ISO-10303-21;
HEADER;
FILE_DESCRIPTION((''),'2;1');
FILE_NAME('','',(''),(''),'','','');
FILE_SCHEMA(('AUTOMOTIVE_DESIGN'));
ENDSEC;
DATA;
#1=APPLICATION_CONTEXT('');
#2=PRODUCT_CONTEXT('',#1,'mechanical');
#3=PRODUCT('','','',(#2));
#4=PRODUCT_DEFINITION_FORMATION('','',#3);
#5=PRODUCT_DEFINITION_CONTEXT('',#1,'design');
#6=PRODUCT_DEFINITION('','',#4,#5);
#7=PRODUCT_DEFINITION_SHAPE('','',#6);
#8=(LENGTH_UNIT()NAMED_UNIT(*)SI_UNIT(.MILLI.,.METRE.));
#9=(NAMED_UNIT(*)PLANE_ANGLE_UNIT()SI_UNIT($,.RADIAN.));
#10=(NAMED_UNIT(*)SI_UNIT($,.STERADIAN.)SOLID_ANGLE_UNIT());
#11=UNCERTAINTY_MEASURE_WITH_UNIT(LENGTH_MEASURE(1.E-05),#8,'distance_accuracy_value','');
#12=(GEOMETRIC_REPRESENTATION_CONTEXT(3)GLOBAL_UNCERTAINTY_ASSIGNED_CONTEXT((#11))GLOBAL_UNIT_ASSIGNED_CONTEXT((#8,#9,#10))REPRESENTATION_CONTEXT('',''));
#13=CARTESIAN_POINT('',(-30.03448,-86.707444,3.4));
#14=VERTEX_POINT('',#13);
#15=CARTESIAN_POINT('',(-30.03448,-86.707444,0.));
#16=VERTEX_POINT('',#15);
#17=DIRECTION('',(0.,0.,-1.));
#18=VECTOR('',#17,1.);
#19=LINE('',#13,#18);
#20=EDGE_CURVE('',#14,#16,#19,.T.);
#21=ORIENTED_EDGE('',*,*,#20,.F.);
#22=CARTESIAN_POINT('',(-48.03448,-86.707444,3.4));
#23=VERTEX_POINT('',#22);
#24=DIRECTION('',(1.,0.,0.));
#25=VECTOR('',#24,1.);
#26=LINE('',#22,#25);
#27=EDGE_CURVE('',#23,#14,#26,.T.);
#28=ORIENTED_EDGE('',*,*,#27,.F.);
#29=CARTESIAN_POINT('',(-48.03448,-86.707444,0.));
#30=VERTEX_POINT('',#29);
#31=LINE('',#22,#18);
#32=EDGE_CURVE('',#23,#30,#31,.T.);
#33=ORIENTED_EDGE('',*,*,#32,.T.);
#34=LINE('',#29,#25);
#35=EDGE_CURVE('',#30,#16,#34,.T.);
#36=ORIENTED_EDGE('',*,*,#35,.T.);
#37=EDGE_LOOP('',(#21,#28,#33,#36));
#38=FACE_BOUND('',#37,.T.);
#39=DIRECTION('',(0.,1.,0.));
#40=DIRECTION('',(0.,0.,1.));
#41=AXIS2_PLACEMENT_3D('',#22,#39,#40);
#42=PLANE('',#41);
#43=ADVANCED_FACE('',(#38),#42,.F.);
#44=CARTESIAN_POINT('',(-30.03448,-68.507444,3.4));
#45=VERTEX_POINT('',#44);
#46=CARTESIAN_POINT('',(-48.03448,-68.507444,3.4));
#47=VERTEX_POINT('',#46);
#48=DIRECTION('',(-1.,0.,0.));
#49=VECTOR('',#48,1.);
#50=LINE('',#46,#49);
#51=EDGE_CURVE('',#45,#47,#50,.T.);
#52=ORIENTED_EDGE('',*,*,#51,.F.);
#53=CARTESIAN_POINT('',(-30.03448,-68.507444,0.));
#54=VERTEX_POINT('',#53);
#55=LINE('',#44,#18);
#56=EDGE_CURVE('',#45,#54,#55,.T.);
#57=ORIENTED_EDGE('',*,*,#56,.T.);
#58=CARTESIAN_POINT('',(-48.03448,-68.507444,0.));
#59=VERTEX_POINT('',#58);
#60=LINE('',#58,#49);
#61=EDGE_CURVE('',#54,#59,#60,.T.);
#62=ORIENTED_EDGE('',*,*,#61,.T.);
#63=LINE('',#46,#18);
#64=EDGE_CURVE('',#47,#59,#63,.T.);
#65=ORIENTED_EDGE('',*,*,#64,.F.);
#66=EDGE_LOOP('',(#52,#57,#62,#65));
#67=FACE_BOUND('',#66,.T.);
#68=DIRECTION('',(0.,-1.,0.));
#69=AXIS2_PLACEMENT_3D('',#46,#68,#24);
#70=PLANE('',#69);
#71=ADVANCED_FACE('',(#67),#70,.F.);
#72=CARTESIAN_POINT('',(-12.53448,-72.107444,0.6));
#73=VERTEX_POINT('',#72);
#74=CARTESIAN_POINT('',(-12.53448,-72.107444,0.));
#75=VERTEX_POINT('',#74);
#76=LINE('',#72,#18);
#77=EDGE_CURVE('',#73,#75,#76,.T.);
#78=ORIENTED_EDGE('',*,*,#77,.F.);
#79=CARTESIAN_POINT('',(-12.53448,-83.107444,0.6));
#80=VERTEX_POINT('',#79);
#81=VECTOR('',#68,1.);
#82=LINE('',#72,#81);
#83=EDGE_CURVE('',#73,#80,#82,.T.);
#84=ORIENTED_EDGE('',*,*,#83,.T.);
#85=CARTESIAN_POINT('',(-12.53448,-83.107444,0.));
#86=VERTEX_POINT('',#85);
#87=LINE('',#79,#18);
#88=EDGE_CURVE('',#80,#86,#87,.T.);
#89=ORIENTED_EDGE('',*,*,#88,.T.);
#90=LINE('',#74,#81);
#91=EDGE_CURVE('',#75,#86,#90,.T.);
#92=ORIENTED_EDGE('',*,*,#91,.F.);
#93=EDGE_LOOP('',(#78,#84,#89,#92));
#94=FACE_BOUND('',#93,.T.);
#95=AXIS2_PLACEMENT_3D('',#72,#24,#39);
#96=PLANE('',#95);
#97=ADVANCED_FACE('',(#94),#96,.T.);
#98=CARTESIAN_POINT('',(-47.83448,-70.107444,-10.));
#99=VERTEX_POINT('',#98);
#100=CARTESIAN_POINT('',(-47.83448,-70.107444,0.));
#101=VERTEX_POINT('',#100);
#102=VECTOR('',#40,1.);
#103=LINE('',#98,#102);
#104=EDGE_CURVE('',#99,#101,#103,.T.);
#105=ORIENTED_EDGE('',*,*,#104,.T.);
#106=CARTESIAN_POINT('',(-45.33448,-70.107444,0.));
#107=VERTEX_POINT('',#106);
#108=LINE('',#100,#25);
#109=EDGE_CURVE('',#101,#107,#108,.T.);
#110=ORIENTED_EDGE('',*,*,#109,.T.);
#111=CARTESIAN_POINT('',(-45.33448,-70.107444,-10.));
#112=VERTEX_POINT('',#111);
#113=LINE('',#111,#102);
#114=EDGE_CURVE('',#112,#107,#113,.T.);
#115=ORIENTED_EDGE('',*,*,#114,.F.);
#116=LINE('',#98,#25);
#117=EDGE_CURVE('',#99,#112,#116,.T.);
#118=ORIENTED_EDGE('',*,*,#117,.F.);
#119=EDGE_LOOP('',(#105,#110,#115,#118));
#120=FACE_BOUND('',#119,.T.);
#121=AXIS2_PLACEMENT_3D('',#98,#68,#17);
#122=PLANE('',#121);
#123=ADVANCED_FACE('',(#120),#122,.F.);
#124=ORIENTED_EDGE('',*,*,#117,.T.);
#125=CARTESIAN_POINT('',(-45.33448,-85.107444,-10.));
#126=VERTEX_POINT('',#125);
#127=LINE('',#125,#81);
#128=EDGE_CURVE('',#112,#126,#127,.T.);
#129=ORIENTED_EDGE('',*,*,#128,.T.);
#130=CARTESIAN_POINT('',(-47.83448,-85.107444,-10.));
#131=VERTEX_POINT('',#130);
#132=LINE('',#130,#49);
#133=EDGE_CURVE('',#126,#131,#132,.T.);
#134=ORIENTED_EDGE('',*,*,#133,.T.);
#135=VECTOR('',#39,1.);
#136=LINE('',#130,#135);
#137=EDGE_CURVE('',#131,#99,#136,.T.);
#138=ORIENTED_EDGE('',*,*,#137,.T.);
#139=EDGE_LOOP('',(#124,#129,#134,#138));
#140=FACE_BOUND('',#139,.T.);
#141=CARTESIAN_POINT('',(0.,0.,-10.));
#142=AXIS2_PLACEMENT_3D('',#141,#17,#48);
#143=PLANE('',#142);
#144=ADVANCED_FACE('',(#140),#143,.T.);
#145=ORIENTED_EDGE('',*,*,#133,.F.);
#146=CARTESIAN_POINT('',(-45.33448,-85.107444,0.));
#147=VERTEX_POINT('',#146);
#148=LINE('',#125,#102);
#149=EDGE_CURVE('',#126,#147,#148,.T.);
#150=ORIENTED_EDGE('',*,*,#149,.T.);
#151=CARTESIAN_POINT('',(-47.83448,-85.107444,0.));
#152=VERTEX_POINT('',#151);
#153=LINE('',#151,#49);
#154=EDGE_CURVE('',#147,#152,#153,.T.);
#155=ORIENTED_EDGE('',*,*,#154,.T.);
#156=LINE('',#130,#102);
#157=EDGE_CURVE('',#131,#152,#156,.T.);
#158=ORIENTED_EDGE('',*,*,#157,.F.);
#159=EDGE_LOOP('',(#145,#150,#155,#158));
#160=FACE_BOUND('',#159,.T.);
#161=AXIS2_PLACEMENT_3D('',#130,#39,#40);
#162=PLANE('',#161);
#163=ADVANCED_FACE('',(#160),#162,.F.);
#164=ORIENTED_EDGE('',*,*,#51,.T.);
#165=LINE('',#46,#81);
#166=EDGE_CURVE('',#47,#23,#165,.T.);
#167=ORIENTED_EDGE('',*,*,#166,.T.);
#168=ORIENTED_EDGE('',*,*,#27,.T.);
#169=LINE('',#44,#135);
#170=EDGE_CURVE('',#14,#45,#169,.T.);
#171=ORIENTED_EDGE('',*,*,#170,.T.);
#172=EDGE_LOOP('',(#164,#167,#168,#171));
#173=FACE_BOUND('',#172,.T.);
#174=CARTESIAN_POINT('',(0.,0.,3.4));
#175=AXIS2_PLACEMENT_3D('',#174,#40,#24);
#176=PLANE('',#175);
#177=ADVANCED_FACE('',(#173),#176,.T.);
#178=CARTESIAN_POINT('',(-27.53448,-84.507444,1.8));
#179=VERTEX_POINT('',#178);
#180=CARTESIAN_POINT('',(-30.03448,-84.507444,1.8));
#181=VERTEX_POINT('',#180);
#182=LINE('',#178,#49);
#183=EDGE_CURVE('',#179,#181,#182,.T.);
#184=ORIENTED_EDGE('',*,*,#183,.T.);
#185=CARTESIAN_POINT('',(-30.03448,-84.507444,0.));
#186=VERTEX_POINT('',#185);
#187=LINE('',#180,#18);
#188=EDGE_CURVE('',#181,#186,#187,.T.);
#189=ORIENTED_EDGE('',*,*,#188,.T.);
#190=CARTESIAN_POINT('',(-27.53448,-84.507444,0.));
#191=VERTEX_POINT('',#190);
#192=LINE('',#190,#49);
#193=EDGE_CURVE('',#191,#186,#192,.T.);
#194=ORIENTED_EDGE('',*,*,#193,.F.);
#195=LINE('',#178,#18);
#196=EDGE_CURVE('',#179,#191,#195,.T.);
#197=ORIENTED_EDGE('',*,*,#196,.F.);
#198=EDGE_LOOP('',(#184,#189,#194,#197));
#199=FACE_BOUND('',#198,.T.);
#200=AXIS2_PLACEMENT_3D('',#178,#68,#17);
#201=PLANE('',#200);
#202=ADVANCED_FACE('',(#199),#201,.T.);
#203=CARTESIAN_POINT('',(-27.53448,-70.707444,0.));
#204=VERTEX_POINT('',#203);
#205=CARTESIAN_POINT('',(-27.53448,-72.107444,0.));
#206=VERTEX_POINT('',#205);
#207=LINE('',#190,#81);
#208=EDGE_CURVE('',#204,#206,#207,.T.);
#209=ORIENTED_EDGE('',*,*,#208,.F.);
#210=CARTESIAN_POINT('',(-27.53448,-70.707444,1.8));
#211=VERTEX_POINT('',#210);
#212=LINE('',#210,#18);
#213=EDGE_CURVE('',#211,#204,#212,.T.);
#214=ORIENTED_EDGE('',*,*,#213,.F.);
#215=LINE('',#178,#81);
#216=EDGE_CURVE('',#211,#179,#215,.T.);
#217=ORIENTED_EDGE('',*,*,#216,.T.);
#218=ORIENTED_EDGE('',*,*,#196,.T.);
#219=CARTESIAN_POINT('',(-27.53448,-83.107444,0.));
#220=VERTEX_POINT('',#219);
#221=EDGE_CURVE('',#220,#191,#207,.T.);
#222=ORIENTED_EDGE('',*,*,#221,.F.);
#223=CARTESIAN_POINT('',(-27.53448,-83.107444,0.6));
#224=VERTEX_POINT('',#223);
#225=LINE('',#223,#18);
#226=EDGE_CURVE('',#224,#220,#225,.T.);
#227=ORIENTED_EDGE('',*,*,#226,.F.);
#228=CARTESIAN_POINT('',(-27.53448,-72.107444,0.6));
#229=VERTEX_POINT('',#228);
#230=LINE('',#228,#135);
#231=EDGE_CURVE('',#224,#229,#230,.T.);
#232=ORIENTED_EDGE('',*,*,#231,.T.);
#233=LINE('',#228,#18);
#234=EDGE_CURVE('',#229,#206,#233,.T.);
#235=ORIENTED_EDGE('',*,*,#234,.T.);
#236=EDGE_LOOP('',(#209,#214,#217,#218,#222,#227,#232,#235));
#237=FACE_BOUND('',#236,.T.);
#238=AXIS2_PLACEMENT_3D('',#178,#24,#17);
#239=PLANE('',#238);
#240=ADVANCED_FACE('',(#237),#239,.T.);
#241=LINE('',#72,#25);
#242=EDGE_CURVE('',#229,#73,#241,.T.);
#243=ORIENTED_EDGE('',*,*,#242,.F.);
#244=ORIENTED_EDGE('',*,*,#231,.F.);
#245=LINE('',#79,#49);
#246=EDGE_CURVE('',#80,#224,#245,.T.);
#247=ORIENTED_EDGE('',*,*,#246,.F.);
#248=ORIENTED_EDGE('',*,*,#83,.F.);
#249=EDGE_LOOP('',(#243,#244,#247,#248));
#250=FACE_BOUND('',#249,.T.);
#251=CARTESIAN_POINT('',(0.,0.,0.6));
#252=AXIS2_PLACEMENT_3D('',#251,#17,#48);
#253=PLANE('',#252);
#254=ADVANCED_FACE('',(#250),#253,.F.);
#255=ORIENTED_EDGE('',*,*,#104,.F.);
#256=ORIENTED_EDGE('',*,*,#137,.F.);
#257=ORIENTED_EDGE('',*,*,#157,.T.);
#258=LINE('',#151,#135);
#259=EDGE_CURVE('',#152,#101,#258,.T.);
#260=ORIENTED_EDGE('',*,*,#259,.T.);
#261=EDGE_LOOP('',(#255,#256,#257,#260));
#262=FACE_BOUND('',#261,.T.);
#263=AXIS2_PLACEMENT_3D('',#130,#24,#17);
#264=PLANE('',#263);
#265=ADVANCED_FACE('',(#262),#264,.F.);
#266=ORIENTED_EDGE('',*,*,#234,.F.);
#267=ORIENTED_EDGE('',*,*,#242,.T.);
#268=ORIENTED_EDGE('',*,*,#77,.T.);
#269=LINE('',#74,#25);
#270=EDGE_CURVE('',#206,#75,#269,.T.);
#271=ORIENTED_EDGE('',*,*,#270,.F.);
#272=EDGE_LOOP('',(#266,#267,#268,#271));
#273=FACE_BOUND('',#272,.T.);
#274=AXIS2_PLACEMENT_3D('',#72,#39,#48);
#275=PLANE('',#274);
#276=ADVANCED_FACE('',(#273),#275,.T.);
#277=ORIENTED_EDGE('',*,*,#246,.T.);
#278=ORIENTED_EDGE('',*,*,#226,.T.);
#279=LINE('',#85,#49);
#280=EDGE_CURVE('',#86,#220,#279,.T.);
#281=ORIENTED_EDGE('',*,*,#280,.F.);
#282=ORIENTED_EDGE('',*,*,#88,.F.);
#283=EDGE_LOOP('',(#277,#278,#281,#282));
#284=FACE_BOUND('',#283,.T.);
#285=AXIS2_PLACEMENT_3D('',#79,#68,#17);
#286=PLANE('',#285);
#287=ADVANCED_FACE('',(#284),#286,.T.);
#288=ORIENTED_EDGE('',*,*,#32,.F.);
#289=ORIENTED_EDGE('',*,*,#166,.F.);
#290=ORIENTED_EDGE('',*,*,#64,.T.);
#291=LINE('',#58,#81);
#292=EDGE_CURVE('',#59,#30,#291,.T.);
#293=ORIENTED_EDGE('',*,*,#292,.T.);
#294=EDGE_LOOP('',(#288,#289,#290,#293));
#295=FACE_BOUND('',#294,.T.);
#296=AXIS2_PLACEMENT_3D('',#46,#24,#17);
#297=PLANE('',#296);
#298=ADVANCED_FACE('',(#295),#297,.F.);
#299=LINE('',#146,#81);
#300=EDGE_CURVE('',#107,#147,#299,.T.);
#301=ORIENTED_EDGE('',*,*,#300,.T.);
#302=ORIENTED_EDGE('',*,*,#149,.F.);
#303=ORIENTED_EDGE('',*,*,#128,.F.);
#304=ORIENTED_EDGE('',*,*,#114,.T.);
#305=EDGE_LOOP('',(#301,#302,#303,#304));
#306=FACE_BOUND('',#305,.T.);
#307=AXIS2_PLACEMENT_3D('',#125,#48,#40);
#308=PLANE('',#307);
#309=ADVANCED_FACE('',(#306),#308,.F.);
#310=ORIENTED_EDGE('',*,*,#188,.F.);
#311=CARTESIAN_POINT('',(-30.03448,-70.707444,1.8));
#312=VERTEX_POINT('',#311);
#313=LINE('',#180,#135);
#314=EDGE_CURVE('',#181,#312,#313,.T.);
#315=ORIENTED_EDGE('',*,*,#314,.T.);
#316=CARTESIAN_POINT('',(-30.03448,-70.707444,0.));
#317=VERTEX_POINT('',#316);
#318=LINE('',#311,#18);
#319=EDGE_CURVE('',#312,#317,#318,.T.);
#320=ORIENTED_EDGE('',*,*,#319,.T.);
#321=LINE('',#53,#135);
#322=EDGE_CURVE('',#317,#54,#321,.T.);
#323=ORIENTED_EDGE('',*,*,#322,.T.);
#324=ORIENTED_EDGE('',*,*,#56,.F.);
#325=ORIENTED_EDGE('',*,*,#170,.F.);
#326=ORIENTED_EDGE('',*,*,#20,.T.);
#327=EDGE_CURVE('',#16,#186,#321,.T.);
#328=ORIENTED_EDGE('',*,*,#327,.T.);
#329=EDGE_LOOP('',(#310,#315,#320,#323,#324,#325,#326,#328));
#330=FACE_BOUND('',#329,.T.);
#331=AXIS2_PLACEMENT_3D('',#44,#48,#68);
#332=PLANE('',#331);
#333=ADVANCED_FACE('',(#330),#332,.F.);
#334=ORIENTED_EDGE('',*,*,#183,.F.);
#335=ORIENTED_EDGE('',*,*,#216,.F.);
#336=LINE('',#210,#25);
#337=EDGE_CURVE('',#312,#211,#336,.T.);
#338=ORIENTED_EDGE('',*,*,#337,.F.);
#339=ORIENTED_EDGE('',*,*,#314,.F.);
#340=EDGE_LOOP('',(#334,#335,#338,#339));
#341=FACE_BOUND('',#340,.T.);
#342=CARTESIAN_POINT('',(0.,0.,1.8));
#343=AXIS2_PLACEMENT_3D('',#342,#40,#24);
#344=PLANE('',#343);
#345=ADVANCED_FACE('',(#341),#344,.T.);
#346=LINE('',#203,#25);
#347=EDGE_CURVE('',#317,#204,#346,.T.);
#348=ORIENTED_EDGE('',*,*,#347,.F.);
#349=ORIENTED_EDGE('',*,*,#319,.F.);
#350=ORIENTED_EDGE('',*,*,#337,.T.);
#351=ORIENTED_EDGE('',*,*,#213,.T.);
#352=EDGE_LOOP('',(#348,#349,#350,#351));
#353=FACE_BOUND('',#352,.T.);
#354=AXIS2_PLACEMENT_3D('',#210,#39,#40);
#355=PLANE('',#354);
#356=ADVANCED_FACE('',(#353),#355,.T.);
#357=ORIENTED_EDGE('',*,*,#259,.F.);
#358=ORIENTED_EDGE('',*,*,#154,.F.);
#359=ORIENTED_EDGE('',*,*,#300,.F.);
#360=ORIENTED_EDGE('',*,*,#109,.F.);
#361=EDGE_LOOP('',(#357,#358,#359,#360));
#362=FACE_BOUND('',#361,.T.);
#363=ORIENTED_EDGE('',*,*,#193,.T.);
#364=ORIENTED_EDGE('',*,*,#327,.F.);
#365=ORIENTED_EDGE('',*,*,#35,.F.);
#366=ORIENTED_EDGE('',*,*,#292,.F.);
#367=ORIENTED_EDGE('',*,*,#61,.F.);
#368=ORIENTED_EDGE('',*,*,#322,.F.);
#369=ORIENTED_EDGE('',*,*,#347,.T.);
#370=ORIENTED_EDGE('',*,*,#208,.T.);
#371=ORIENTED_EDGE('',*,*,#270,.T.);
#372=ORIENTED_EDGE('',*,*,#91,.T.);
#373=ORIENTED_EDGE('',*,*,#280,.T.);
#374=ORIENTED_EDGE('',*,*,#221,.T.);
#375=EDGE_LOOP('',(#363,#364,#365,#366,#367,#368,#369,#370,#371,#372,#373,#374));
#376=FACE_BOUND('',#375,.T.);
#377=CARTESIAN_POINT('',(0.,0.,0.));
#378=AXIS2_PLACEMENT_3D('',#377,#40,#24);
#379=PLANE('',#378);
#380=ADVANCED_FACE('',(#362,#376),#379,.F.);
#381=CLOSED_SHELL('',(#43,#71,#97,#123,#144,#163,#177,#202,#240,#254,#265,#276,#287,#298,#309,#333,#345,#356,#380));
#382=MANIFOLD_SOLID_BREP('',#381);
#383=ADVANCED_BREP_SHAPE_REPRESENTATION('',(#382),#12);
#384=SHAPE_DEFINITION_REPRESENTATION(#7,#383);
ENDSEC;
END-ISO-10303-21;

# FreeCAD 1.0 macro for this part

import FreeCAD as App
import Part
import Sketcher

V = App.Vector
Q = App.Units.Quantity

doc = App.newDocument("Part")
body = doc.addObject("PartDesign::Body", "Body")

sketch1 = body.newObject("Sketcher::SketchObject", "Sketch")
sketch1.AttachmentSupport = (doc.getObject("XY_Plane"), [""])
sketch1.MapMode = "FlatFace"
sketch1.addGeometry([
    Part.LineSegment(V(-48, -69, 0), V(-48, -87, 0)),
    Part.LineSegment(V(-48, -87, 0), V(-30, -87, 0)),
    Part.LineSegment(V(-30, -87, 0), V(-30, -69, 0)),
    Part.LineSegment(V(-30, -69, 0), V(-48, -69, 0)),
], False)
sketch1.addConstraint([
    Sketcher.Constraint("Coincident", 0, 2, 1, 1),
    Sketcher.Constraint("Coincident", 1, 2, 2, 1),
    Sketcher.Constraint("Coincident", 2, 2, 3, 1),
    Sketcher.Constraint("Coincident", 3, 2, 0, 1),
    Sketcher.Constraint("Vertical", 0),
    Sketcher.Constraint("Horizontal", 1),
    Sketcher.Constraint("Vertical", 2),
    Sketcher.Constraint("Horizontal", 3),
    Sketcher.Constraint("DistanceX", 1, 1, 1, 2, Q("18 mm")),
    Sketcher.Constraint("DistanceY", 0, 2, 0, 1, Q("18.2 mm")),
    Sketcher.Constraint("DistanceX", 0, 2, -1, 1, Q("48.03448 mm")),
    Sketcher.Constraint("DistanceY", 0, 2, -1, 1, Q("86.707444 mm")),
])
pad1 = body.newObject("PartDesign::Pad", "Pad")
pad1.Profile = sketch1
pad1.Length = 3.4

sketch2 = body.newObject("Sketcher::SketchObject", "Sketch001")
sketch2.AttachmentSupport = (doc.getObject("XY_Plane"), [""])
sketch2.MapMode = "FlatFace"
sketch2.addGeometry([
    Part.LineSegment(V(-45.3, -70.1, 0), V(-45.3, -85.1, 0)),
    Part.LineSegment(V(-45.3, -85.1, 0), V(-47.8, -85.1, 0)),
    Part.LineSegment(V(-47.8, -85.1, 0), V(-47.8, -70.1, 0)),
    Part.LineSegment(V(-47.8, -70.1, 0), V(-45.3, -70.1, 0)),
], False)
sketch2.addConstraint([
    Sketcher.Constraint("Coincident", 0, 2, 1, 1),
    Sketcher.Constraint("Coincident", 1, 2, 2, 1),
    Sketcher.Constraint("Coincident", 2, 2, 3, 1),
    Sketcher.Constraint("Coincident", 3, 2, 0, 1),
    Sketcher.Constraint("Vertical", 0),
    Sketcher.Constraint("Horizontal", 1),
    Sketcher.Constraint("Vertical", 2),
    Sketcher.Constraint("Horizontal", 3),
    Sketcher.Constraint("DistanceY", 0, 2, 0, 1, Q("15 mm")),
    Sketcher.Constraint("DistanceX", 1, 2, 1, 1, Q("2.5 mm")),
    Sketcher.Constraint("DistanceX", 0, 2, -1, 1, Q("45.33448 mm")),
    Sketcher.Constraint("DistanceY", 0, 2, -1, 1, Q("85.107444 mm")),
])
pad2 = body.newObject("PartDesign::Pad", "Pad001")
pad2.Profile = sketch2
pad2.Length = 10
pad2.Reversed = True

sketch3 = body.newObject("Sketcher::SketchObject", "Sketch002")
sketch3.AttachmentSupport = (doc.getObject("XY_Plane"), [""])
sketch3.MapMode = "FlatFace"
sketch3.addGeometry([
    Part.LineSegment(V(-27.5, -70.7, 0), V(-27.5, -84.5, 0)),
    Part.LineSegment(V(-27.5, -84.5, 0), V(-30, -84.5, 0)),
    Part.LineSegment(V(-30, -84.5, 0), V(-30, -70.7, 0)),
    Part.LineSegment(V(-30, -70.7, 0), V(-27.5, -70.7, 0)),
], False)
sketch3.addConstraint([
    Sketcher.Constraint("Coincident", 0, 2, 1, 1),
    Sketcher.Constraint("Coincident", 1, 2, 2, 1),
    Sketcher.Constraint("Coincident", 2, 2, 3, 1),
    Sketcher.Constraint("Coincident", 3, 2, 0, 1),
    Sketcher.Constraint("Vertical", 0),
    Sketcher.Constraint("Horizontal", 1),
    Sketcher.Constraint("Vertical", 2),
    Sketcher.Constraint("Horizontal", 3),
    Sketcher.Constraint("DistanceX", 1, 2, 1, 1, Q("2.5 mm")),
    Sketcher.Constraint("DistanceY", 0, 2, 0, 1, Q("13.8 mm")),
    Sketcher.Constraint("DistanceX", 0, 2, -1, 1, Q("27.53448 mm")),
    Sketcher.Constraint("DistanceY", 0, 2, -1, 1, Q("84.507444 mm")),
])
pad3 = body.newObject("PartDesign::Pad", "Pad002")
pad3.Profile = sketch3
pad3.Length = 1.8

sketch4 = body.newObject("Sketcher::SketchObject", "Sketch003")
sketch4.AttachmentSupport = (doc.getObject("XY_Plane"), [""])
sketch4.MapMode = "FlatFace"
sketch4.addGeometry([
    Part.LineSegment(V(-13, -72, 0), V(-13, -83, 0)),
    Part.LineSegment(V(-13, -83, 0), V(-28, -83, 0)),
    Part.LineSegment(V(-28, -83, 0), V(-28, -72, 0)),
    Part.LineSegment(V(-28, -72, 0), V(-13, -72, 0)),
], False)
sketch4.addConstraint([
    Sketcher.Constraint("Coincident", 0, 2, 1, 1),
    Sketcher.Constraint("Coincident", 1, 2, 2, 1),
    Sketcher.Constraint("Coincident", 2, 2, 3, 1),
    Sketcher.Constraint("Coincident", 3, 2, 0, 1),
    Sketcher.Constraint("Vertical", 0),
    Sketcher.Constraint("Horizontal", 1),
    Sketcher.Constraint("Vertical", 2),
    Sketcher.Constraint("Horizontal", 3),
    Sketcher.Constraint("DistanceX", 1, 2, 1, 1, Q("15 mm")),
    Sketcher.Constraint("DistanceY", 0, 2, 0, 1, Q("11 mm")),
    Sketcher.Constraint("DistanceX", 0, 2, -1, 1, Q("12.53448 mm")),
    Sketcher.Constraint("DistanceY", 0, 2, -1, 1, Q("83.107444 mm")),
])
pad4 = body.newObject("PartDesign::Pad", "Pad003")
pad4.Profile = sketch4
pad4.Length = 0.6

doc.recompute()
